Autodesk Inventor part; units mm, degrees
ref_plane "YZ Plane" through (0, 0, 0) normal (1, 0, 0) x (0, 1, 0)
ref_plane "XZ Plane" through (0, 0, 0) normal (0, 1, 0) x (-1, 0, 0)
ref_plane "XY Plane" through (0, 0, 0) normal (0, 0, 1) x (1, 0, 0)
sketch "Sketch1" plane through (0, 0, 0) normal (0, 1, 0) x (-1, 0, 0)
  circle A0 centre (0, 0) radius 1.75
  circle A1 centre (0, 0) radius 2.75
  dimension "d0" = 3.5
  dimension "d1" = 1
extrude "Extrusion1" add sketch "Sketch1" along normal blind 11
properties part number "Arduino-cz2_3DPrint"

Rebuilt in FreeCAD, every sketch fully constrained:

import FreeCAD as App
import Part
import Sketcher
Q = App.Units.Quantity

doc = App.newDocument("Part")
params = doc.addObject("Spreadsheet::Sheet", "Params")
for row, (alias, value) in enumerate([
    ("sketch1_diameter", "3.5 mm"),
    ("sketch1_diameter2", "5.5 mm"),
    ("pad1_length", "11 mm"),
], start=1):
    params.set(f"A{row}", alias)
    params.set(f"B{row}", "=" + value)
    params.setAlias(f"B{row}", alias)

body = doc.addObject("PartDesign::Body", "Body")

sketch1 = body.newObject("Sketcher::SketchObject", "Sketch")
sketch1.AttachmentSupport = (doc.getObject("XZ_Plane"), [""])
sketch1.MapMode = "FlatFace"
sketch1.addGeometry([
    Part.Circle(App.Vector(0, 0, 0), App.Vector(0, 0, 1), 2.8),
    Part.Circle(App.Vector(0, 0, 0), App.Vector(0, 0, 1), 1.8),
], False)
sketch1.addConstraint([
    Sketcher.Constraint("Coincident", 0, 3, -1, 1),
    Sketcher.Constraint("Coincident", 1, 3, -1, 1),
    Sketcher.Constraint("Diameter", 1, Q("3.5 mm")),
    Sketcher.Constraint("Diameter", 0, Q("5.5 mm")),
])
sketch1.setExpression("Constraints[2]", "Params.sketch1_diameter")
sketch1.setExpression("Constraints[3]", "Params.sketch1_diameter2")
pad1 = body.newObject("PartDesign::Pad", "Pad")
pad1.Profile = sketch1
pad1.setExpression("Length", "Params.pad1_length")
pad1.Reversed = True

doc.recompute()
